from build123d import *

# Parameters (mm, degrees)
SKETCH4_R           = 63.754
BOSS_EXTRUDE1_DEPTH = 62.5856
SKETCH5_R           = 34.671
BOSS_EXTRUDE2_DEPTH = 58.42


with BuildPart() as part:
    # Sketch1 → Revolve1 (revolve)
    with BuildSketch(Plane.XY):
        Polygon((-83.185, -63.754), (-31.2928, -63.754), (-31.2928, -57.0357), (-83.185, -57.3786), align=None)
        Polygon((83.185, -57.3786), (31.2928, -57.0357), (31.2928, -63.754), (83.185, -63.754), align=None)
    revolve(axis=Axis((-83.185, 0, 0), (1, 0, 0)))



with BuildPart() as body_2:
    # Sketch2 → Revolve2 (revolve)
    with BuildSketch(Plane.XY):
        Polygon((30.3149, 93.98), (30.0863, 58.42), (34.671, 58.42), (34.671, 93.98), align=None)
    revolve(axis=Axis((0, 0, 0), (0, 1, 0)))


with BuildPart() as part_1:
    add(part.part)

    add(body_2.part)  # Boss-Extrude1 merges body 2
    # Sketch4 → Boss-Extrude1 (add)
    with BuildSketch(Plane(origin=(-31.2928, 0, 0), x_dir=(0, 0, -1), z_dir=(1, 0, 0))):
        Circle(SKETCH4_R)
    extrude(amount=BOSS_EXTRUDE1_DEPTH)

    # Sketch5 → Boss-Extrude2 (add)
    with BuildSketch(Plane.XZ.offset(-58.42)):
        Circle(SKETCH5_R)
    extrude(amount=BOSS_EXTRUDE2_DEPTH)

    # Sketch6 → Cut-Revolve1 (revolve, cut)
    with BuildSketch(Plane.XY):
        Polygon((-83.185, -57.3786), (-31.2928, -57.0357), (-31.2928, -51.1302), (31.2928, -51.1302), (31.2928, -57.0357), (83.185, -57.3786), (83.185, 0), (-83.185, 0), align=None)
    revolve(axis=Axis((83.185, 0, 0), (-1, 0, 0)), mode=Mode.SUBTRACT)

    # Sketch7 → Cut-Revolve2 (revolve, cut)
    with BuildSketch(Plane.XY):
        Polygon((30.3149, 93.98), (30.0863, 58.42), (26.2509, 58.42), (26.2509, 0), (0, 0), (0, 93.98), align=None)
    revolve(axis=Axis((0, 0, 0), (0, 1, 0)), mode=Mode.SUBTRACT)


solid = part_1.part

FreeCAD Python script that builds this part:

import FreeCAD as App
import Part
import Sketcher
Q = App.Units.Quantity


def add_polygon(sketch, points):
    """Adds a closed chain of lines whose ends are joined by coincident constraints."""
    first, n = sketch.GeometryCount, len(points)
    for a, b in zip(points, points[1:] + points[:1]):
        sketch.addGeometry(Part.LineSegment(App.Vector(*a, 0), App.Vector(*b, 0)), False)
    for i in range(n):
        sketch.addConstraint(Sketcher.Constraint("Coincident", first + i, 2, first + (i + 1) % n, 1))

doc = App.newDocument("Part")
params = doc.addObject("Spreadsheet::Sheet", "Params")
for row, (alias, value) in enumerate([
    ("sketch1_width", "2.043 in"),
    ("sketch1_height", "0.251 in"),
    ("revolution_angle", "360 deg"),
    ("sketch2_height", "1.4 in"),
    ("revolution2_angle", "360 deg"),
    ("sketch3_diameter", "5.02 in"),
    ("pad1_length", "2.464 in"),
    ("sketch4_diameter", "2.73 in"),
    ("pad2_length", "2.3 in"),
    ("sketch5_width", "6.55 in"),
    ("sketch5_width2", "2.464 in"),
    ("sketch5_height", "2.259 in"),
    ("groove_angle", "360 deg"),
    ("sketch6_height", "3.7 in"),
    ("sketch6_height2", "2.3 in"),
    ("sketch6_width", "0.151 in"),
    ("groove2_angle", "360 deg"),
], start=1):
    params.set(f"A{row}", alias)
    params.set(f"B{row}", "=" + value)
    params.setAlias(f"B{row}", alias)

body = doc.addObject("PartDesign::Body", "Body")
body.AllowCompound = True

sketch1 = doc.addObject("Sketcher::SketchObject", "Sketch")
body.addObject(sketch1)
sketch1.AttachmentSupport = (doc.XY_Plane, [""])
sketch1.MapMode = "FlatFace"
add_polygon(sketch1, [(-83, -64), (-31, -64), (-31, -57), (-83, -57)])
add_polygon(sketch1, [(83, -57), (31, -57), (31, -64), (83, -64)])
sketch1.addConstraint(Sketcher.Constraint("Horizontal", 0))
sketch1.addConstraint(Sketcher.Constraint("Vertical", 1))
sketch1.addConstraint(Sketcher.Constraint("Vertical", 3))
sketch1.addConstraint(Sketcher.Constraint("Vertical", 5))
sketch1.addConstraint(Sketcher.Constraint("Horizontal", 6))
sketch1.addConstraint(Sketcher.Constraint("Vertical", 7))
sketch1.addConstraint(Sketcher.Constraint("Symmetric", 1, 2, 4, 2, -2))
sketch1.addConstraint(Sketcher.Constraint("Symmetric", 3, 2, 6, 2, -2))
sketch1.addConstraint(Sketcher.Constraint("Horizontal", 2, 2, 7, 2))
sketch1.addConstraint(Sketcher.Constraint("DistanceX", 0, 1, 0, 2, Q("2.043 in")))
sketch1.addConstraint(Sketcher.Constraint("DistanceY", 3, 2, 3, 1, Q("0.251 in")))
sketch1.addConstraint(Sketcher.Constraint("DistanceY", 0, 2, -1, 1, Q("2.51 in")))
sketch1.addConstraint(Sketcher.Constraint("DistanceX", 3, 2, 6, 2, Q("6.55 in")))
sketch1.addConstraint(Sketcher.Constraint("DistanceY", 1, 1, 1, 2, Q("0.2645 in")))
sketch1.setExpression("Constraints[17]", "Params.sketch1_width")
sketch1.setExpression("Constraints[18]", "Params.sketch1_height")
revolution = doc.addObject("PartDesign::Revolution", "Revolution")
body.addObject(revolution)
revolution.Profile = sketch1
revolution.ReferenceAxis = (sketch1, ["H_Axis"])
revolution.setExpression("Angle", "Params.revolution_angle")
body2 = doc.addObject("PartDesign::Body", "Body001")

sketch2 = doc.addObject("Sketcher::SketchObject", "Sketch001")
body2.addObject(sketch2)
sketch2.AttachmentSupport = (doc.getObject("XY_Plane001"), [""])
sketch2.MapMode = "FlatFace"
add_polygon(sketch2, [(30.3, 94), (30.1, 58.4), (34.7, 58.4), (34.7, 94)])
sketch2.addConstraint(Sketcher.Constraint("Horizontal", 1))
sketch2.addConstraint(Sketcher.Constraint("Vertical", 2))
sketch2.addConstraint(Sketcher.Constraint("Horizontal", 3))
sketch2.addConstraint(Sketcher.Constraint("DistanceY", 2, 1, 2, 2, Q("1.4 in")))
sketch2.addConstraint(Sketcher.Constraint("DistanceY", -1, 1, 0, 2, Q("2.3 in")))
sketch2.addConstraint(Sketcher.Constraint("DistanceX", 1, 1, 1, 2, Q("0.1805 in")))
sketch2.addConstraint(Sketcher.Constraint("DistanceX", 3, 2, 3, 1, Q("0.1715 in")))
sketch2.addConstraint(Sketcher.Constraint("DistanceX", -1, 1, 1, 2, Q("1.365 in")))
sketch2.setExpression("Constraints[7]", "Params.sketch2_height")
revolution2 = doc.addObject("PartDesign::Revolution", "Revolution001")
body2.addObject(revolution2)
revolution2.Profile = sketch2
revolution2.ReferenceAxis = (sketch2, ["V_Axis"])
revolution2.setExpression("Angle", "Params.revolution2_angle")
doc.recompute()

boolean = doc.addObject("PartDesign::Boolean", "Boolean")
body.addObject(boolean)
boolean.Type = "Fuse"
boolean.addObjects([body2])

sketch3 = doc.addObject("Sketcher::SketchObject", "Sketch002")
body.addObject(sketch3)
sketch3.AttachmentSupport = (doc.YZ_Plane, [""])
sketch3.MapMode = "FlatFace"
sketch3.AttachmentOffset = App.Placement(App.Vector(0, 0, -1.232 * 25.4), App.Rotation())
sketch3.addGeometry(Part.Circle(App.Vector(0, 0, 0), App.Vector(0, 0, 1), 64), False)
sketch3.addConstraint(Sketcher.Constraint("Coincident", 0, 3, -1, 1))
sketch3.addConstraint(Sketcher.Constraint("Diameter", 0, Q("5.02 in")))
sketch3.setExpression("Constraints[1]", "Params.sketch3_diameter")
pad1 = doc.addObject("PartDesign::Pad", "Pad")
body.addObject(pad1)
pad1.Profile = sketch3
pad1.setExpression("Length", "Params.pad1_length")

sketch4 = doc.addObject("Sketcher::SketchObject", "Sketch003")
body.addObject(sketch4)
sketch4.AttachmentSupport = (doc.XZ_Plane, [""])
sketch4.MapMode = "FlatFace"
sketch4.AttachmentOffset = App.Placement(App.Vector(0, 0, -2.3 * 25.4), App.Rotation())
sketch4.addGeometry(Part.Circle(App.Vector(0, 0, 0), App.Vector(0, 0, 1), 35), False)
sketch4.addConstraint(Sketcher.Constraint("Coincident", 0, 3, -1, 1))
sketch4.addConstraint(Sketcher.Constraint("Diameter", 0, Q("2.73 in")))
sketch4.setExpression("Constraints[1]", "Params.sketch4_diameter")
pad2 = doc.addObject("PartDesign::Pad", "Pad001")
body.addObject(pad2)
pad2.Profile = sketch4
pad2.setExpression("Length", "Params.pad2_length")

sketch5 = doc.addObject("Sketcher::SketchObject", "Sketch004")
body.addObject(sketch5)
sketch5.AttachmentSupport = (doc.XY_Plane, [""])
sketch5.MapMode = "FlatFace"
add_polygon(sketch5, [(-83, -57), (-31, -57), (-31, -51), (31, -51), (31, -57), (83, -57), (83, 0), (-83, 0)])
sketch5.addConstraint(Sketcher.Constraint("Vertical", 1))
sketch5.addConstraint(Sketcher.Constraint("Horizontal", 2))
sketch5.addConstraint(Sketcher.Constraint("Vertical", 3))
sketch5.addConstraint(Sketcher.Constraint("Vertical", 5))
sketch5.addConstraint(Sketcher.Constraint("Horizontal", 6))
sketch5.addConstraint(Sketcher.Constraint("Vertical", 7))
sketch5.addConstraint(Sketcher.Constraint("Symmetric", 5, 2, 6, 2, -1, 1))
sketch5.addConstraint(Sketcher.Constraint("Symmetric", 0, 2, 3, 2, -2))
sketch5.addConstraint(Sketcher.Constraint("Horizontal", 4, 2, 7, 2))
sketch5.addConstraint(Sketcher.Constraint("DistanceX", 6, 2, 6, 1, Q("6.55 in")))
sketch5.addConstraint(Sketcher.Constraint("DistanceX", 2, 1, 2, 2, Q("2.464 in")))
sketch5.addConstraint(Sketcher.Constraint("DistanceY", 5, 1, 5, 2, Q("2.259 in")))
sketch5.addConstraint(Sketcher.Constraint("DistanceY", 1, 1, 1, 2, Q("0.2325 in")))
sketch5.addConstraint(Sketcher.Constraint("DistanceY", 1, 2, -1, 1, Q("2.013 in")))
sketch5.setExpression("Constraints[17]", "Params.sketch5_width")
sketch5.setExpression("Constraints[18]", "Params.sketch5_width2")
sketch5.setExpression("Constraints[19]", "Params.sketch5_height")
groove = doc.addObject("PartDesign::Groove", "Groove")
body.addObject(groove)
groove.Profile = sketch5
groove.ReferenceAxis = (sketch5, ["H_Axis"])
groove.setExpression("Angle", "Params.groove_angle")

sketch6 = doc.addObject("Sketcher::SketchObject", "Sketch005")
body.addObject(sketch6)
sketch6.AttachmentSupport = (doc.XY_Plane, [""])
sketch6.MapMode = "FlatFace"
add_polygon(sketch6, [(30.1, 58.4), (30.3, 94), (0, 94), (0, 0), (26.3, 0), (26.3, 58.4)])
sketch6.addConstraint(Sketcher.Constraint("Horizontal", 1))
sketch6.addConstraint(Sketcher.Constraint("Vertical", 2))
sketch6.addConstraint(Sketcher.Constraint("Horizontal", 3))
sketch6.addConstraint(Sketcher.Constraint("Vertical", 4))
sketch6.addConstraint(Sketcher.Constraint("Horizontal", 5))
sketch6.addConstraint(Sketcher.Constraint("Coincident", 2, 2, -1, 1))
sketch6.addConstraint(Sketcher.Constraint("DistanceY", 2, 2, 2, 1, Q("3.7 in")))
sketch6.addConstraint(Sketcher.Constraint("DistanceY", 4, 1, 4, 2, Q("2.3 in")))
sketch6.addConstraint(Sketcher.Constraint("DistanceX", 5, 1, 5, 2, Q("0.151 in")))
sketch6.addConstraint(Sketcher.Constraint("DistanceX", 3, 2, 0, 2, Q("0.16 in")))
sketch6.addConstraint(Sketcher.Constraint("DistanceX", 1, 2, 1, 1, Q("1.1935 in")))
sketch6.setExpression("Constraints[12]", "Params.sketch6_height")
sketch6.setExpression("Constraints[13]", "Params.sketch6_height2")
sketch6.setExpression("Constraints[14]", "Params.sketch6_width")
groove2 = doc.addObject("PartDesign::Groove", "Groove001")
body.addObject(groove2)
groove2.Profile = sketch6
groove2.ReferenceAxis = (sketch6, ["V_Axis"])
groove2.setExpression("Angle", "Params.groove2_angle")

doc.recompute()
